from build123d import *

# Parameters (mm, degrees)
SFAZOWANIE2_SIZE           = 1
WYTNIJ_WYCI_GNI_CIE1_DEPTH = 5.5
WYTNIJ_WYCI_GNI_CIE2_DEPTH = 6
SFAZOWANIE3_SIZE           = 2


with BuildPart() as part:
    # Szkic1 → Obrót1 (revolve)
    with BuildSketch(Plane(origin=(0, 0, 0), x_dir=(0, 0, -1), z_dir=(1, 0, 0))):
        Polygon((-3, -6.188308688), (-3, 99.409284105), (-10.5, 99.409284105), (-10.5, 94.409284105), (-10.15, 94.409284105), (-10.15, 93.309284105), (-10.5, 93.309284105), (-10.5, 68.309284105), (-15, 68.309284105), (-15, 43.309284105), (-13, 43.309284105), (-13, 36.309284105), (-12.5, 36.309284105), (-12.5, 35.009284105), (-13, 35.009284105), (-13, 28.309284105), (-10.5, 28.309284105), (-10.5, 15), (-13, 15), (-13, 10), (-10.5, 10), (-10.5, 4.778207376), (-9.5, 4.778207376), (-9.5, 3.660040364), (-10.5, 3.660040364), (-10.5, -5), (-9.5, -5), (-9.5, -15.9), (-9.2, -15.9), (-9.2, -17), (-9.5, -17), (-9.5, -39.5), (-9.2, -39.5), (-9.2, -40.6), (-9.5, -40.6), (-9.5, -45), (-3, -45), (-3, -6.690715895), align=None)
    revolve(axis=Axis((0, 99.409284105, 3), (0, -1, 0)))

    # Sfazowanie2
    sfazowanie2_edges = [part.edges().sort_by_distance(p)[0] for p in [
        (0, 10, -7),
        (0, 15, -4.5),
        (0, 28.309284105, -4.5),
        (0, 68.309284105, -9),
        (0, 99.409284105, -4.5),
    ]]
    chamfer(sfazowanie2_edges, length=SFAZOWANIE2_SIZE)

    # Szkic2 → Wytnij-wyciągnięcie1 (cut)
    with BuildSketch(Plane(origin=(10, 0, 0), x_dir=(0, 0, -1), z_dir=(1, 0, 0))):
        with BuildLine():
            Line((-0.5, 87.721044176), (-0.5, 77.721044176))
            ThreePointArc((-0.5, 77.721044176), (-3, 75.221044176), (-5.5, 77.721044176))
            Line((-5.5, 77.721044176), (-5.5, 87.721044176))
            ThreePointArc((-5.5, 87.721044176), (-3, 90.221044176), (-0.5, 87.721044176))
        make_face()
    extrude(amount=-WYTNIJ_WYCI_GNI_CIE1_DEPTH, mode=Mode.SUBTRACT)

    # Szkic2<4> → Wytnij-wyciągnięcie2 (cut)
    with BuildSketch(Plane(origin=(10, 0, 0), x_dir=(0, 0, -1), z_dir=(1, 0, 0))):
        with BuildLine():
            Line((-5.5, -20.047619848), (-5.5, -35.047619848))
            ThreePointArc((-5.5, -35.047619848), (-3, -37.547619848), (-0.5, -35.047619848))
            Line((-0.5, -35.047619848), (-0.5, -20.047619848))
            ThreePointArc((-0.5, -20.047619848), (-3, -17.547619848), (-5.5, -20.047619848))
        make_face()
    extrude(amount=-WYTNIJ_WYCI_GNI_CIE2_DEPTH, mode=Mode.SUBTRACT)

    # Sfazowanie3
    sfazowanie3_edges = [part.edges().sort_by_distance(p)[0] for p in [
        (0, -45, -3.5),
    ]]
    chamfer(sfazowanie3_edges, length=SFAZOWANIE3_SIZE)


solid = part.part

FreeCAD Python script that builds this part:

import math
import FreeCAD as App
import Part
import Sketcher

V = App.Vector


def edges_at(feature, points):
    """Names of the edges that pass closest to the given points."""
    edges = feature.Shape.Edges
    near = lambda p: min(range(len(edges)), key=lambda i: edges[i].distToShape(Part.Vertex(*p))[0])
    return sorted({f"Edge{near(p) + 1}" for p in points})


def add_polygon(sketch, points):
    """Adds a closed chain of lines whose ends are joined by coincident constraints."""
    first, n = sketch.GeometryCount, len(points)
    for a, b in zip(points, points[1:] + points[:1]):
        sketch.addGeometry(Part.LineSegment(App.Vector(*a, 0), App.Vector(*b, 0)), False)
    for i in range(n):
        sketch.addConstraint(Sketcher.Constraint("Coincident", first + i, 2, first + (i + 1) % n, 1))

doc = App.newDocument("Part")
body = doc.addObject("PartDesign::Body", "Body")

sketch1 = body.newObject("Sketcher::SketchObject", "Sketch")
sketch1.AttachmentSupport = (doc.getObject("YZ_Plane"), [""])
sketch1.MapMode = "FlatFace"
add_polygon(sketch1, [(99.41, 3), (99.41, 10.5), (94.41, 10.5), (94.41, 10.15), (93.31, 10.15), (93.31, 10.5), (68.31, 10.5), (68.31, 15), (43.31, 15), (43.31, 13), (36.31, 13), (36.31, 12.5), (35.01, 12.5), (35.01, 13), (28.31, 13), (28.31, 10.5), (15, 10.5), (15, 13), (10, 13), (10, 10.5), (4.78, 10.5), (4.78, 9.5), (3.66, 9.5), (3.66, 10.5), (-5, 10.5), (-5, 9.5), (-15.9, 9.5), (-15.9, 9.2), (-17, 9.2), (-17, 9.5), (-39.5, 9.5), (-39.5, 9.2), (-40.6, 9.2), (-40.6, 9.5), (-45, 9.5), (-45, 3)])
sketch1.addGeometry(Part.LineSegment(V(99.41, 3, 0), V(-45, 3, 0)), True)
sketch1.addConstraint([
    Sketcher.Constraint("Vertical", 0),
    Sketcher.Constraint("Horizontal", 1),
    Sketcher.Constraint("Vertical", 2),
    Sketcher.Constraint("Horizontal", 3),
    Sketcher.Constraint("Vertical", 4),
    Sketcher.Constraint("Horizontal", 5),
    Sketcher.Constraint("Vertical", 6),
    Sketcher.Constraint("Horizontal", 7),
    Sketcher.Constraint("Vertical", 8),
    Sketcher.Constraint("Horizontal", 9),
    Sketcher.Constraint("Vertical", 10),
    Sketcher.Constraint("Horizontal", 11),
    Sketcher.Constraint("Vertical", 12),
    Sketcher.Constraint("Horizontal", 13),
    Sketcher.Constraint("Vertical", 14),
    Sketcher.Constraint("Horizontal", 15),
    Sketcher.Constraint("Vertical", 16),
    Sketcher.Constraint("Horizontal", 17),
    Sketcher.Constraint("Vertical", 18),
    Sketcher.Constraint("Horizontal", 19),
    Sketcher.Constraint("Vertical", 20),
    Sketcher.Constraint("Horizontal", 21),
    Sketcher.Constraint("Vertical", 22),
    Sketcher.Constraint("Horizontal", 23),
    Sketcher.Constraint("Vertical", 24),
    Sketcher.Constraint("Horizontal", 25),
    Sketcher.Constraint("Vertical", 26),
    Sketcher.Constraint("Horizontal", 27),
    Sketcher.Constraint("Vertical", 28),
    Sketcher.Constraint("Horizontal", 29),
    Sketcher.Constraint("Vertical", 30),
    Sketcher.Constraint("Horizontal", 31),
    Sketcher.Constraint("Vertical", 32),
    Sketcher.Constraint("Horizontal", 33),
    Sketcher.Constraint("Vertical", 34),
    Sketcher.Constraint("Horizontal", 35),
    Sketcher.Constraint("Horizontal", 36),
    Sketcher.Constraint("Coincident", 36, 1, 35, 2),
    Sketcher.Constraint("Horizontal", 1, 2, 4, 2),
    Sketcher.Constraint("Horizontal", 9, 2, 12, 2),
    Sketcher.Constraint("Horizontal", 5, 2, 14, 2),
    Sketcher.Constraint("Horizontal", 13, 2, 16, 2),
    Sketcher.Constraint("Horizontal", 15, 2, 18, 2),
    Sketcher.Constraint("Horizontal", 19, 2, 22, 2),
    Sketcher.Constraint("Horizontal", 21, 2, 24, 2),
    Sketcher.Constraint("Horizontal", 25, 2, 28, 2),
    Sketcher.Constraint("Horizontal", 27, 2, 30, 2),
    Sketcher.Constraint("Horizontal", 29, 2, 32, 2),
    Sketcher.Constraint("Vertical", 33, 2, 36, 2),
    Sketcher.Constraint("Equal", 5, 7),
    Sketcher.Constraint("Equal", 1, 17),
    Sketcher.Constraint("Equal", 3, 27),
    Sketcher.Constraint("Equal", 27, 31),
    Sketcher.Constraint("DistanceX", 1, 2, 1, 1, 5.0),
    Sketcher.Constraint("DistanceX", 5, 2, 5, 1, 25.0),
    Sketcher.Constraint("DistanceX", 9, 2, 9, 1, 7.0),
    Sketcher.Constraint("DistanceY", 8, 2, 8, 1, 2.0),
    Sketcher.Constraint("DistanceY", 20, 2, 20, 1, 1.0),
    Sketcher.Constraint("DistanceX", 3, 2, 3, 1, 1.1),
    Sketcher.Constraint("DistanceX", 11, 2, 11, 1, 1.3),
    Sketcher.Constraint("DistanceX", 13, 2, 13, 1, 6.7),
    Sketcher.Constraint("DistanceX", 25, 2, 25, 1, 10.9),
    Sketcher.Constraint("DistanceX", 29, 2, 29, 1, 22.5),
    Sketcher.Constraint("DistanceX", 33, 2, 33, 1, 4.4),
    Sketcher.Constraint("DistanceY", 0, 1, 0, 2, 7.5),
    Sketcher.Constraint("DistanceY", 6, 1, 6, 2, 4.5),
    Sketcher.Constraint("DistanceY", 10, 2, 10, 1, 0.5),
    Sketcher.Constraint("DistanceY", 26, 2, 26, 1, 0.3),
    Sketcher.Constraint("DistanceY", -1, 1, 6, 2, 15.0),
    Sketcher.Constraint("DistanceX", -1, 1, 15, 2, 15.0),
    Sketcher.Constraint("DistanceX", 23, 2, -1, 1, 5.0),
    Sketcher.Constraint("DistanceY", 2, 2, 2, 1, 0.35),
    Sketcher.Constraint("DistanceX", 23, 2, 23, 1, 8.66004),
    Sketcher.Constraint("DistanceX", 15, 2, 15, 1, 13.309284),
    Sketcher.Constraint("DistanceX", 19, 2, 19, 1, 5.221793),
])
revolution = body.newObject("PartDesign::Revolution", "Revolution")
revolution.Profile = sketch1
revolution.ReferenceAxis = (sketch1, ["Axis0"])
revolution.Angle = 360
doc.recompute()

chamfer = body.newObject("PartDesign::Chamfer", "Chamfer")
chamfer.Base = (revolution, edges_at(revolution, [
    (0, 10, -7),
    (0, 15, -4.5),
    (0, 28.309, -4.5),
    (0, 68.309, -9),
    (0, 99.409, -4.5),
]))
chamfer.Size = 1

sketch2 = body.newObject("Sketcher::SketchObject", "Sketch001")
sketch2.AttachmentSupport = (doc.getObject("YZ_Plane"), [""])
sketch2.MapMode = "FlatFace"
sketch2.AttachmentOffset = App.Placement(V(0, 0, 10), App.Rotation())
sketch2.addGeometry([
    Part.LineSegment(V(77.7, 0.5, 0), V(87.7, 0.5, 0)),
    Part.ArcOfCircle(Part.Circle(V(87.7, 3, 0), V(0, 0, 1), 2.5), math.radians(-90), math.radians(90)),
    Part.LineSegment(V(87.7, 5.5, 0), V(77.7, 5.5, 0)),
    Part.ArcOfCircle(Part.Circle(V(77.7, 3, 0), V(0, 0, 1), 2.5), math.radians(90), math.radians(270)),
], False)
sketch2.addConstraint([
    Sketcher.Constraint("Tangent", 0, 2, 1, 1),
    Sketcher.Constraint("Tangent", 1, 2, 2, 1),
    Sketcher.Constraint("Tangent", 2, 2, 3, 1),
    Sketcher.Constraint("Tangent", 3, 2, 0, 1),
    Sketcher.Constraint("Horizontal", 0),
    Sketcher.Constraint("Horizontal", 2),
    Sketcher.Constraint("Radius", 1, 2.5),
    Sketcher.Constraint("DistanceX", 0, 1, 0, 2, 10.0),
    Sketcher.Constraint("DistanceY", -1, 1, 1, 3, 3.0),
    Sketcher.Constraint("DistanceX", -1, 1, 1, 3, 87.721044),
])
pocket1 = body.newObject("PartDesign::Pocket", "Pocket")
pocket1.Profile = sketch2
pocket1.Length = 5.5

sketch3 = body.newObject("Sketcher::SketchObject", "Sketch002")
sketch3.AttachmentSupport = (doc.getObject("YZ_Plane"), [""])
sketch3.MapMode = "FlatFace"
sketch3.AttachmentOffset = App.Placement(V(0, 0, 10), App.Rotation())
sketch3.addGeometry([
    Part.LineSegment(V(-20, 5.5, 0), V(-35, 5.5, 0)),
    Part.ArcOfCircle(Part.Circle(V(-35, 3, 0), V(0, 0, 1), 2.5), math.radians(90), math.radians(270)),
    Part.LineSegment(V(-35, 0.5, 0), V(-20, 0.5, 0)),
    Part.ArcOfCircle(Part.Circle(V(-20, 3, 0), V(0, 0, 1), 2.5), math.radians(-90), math.radians(90)),
], False)
sketch3.addConstraint([
    Sketcher.Constraint("Tangent", 0, 2, 1, 1),
    Sketcher.Constraint("Tangent", 1, 2, 2, 1),
    Sketcher.Constraint("Tangent", 2, 2, 3, 1),
    Sketcher.Constraint("Tangent", 3, 2, 0, 1),
    Sketcher.Constraint("Horizontal", 0),
    Sketcher.Constraint("Horizontal", 2),
    Sketcher.Constraint("Radius", 1, 2.5),
    Sketcher.Constraint("DistanceX", 0, 2, 0, 1, 15.0),
    Sketcher.Constraint("DistanceY", -1, 1, 1, 3, 3.0),
    Sketcher.Constraint("DistanceX", 1, 3, -1, 1, 35.04762),
])
pocket2 = body.newObject("PartDesign::Pocket", "Pocket001")
pocket2.Profile = sketch3
pocket2.Length = 6
doc.recompute()

chamfer2 = body.newObject("PartDesign::Chamfer", "Chamfer001")
chamfer2.Base = (pocket2, edges_at(pocket2, [(0, -45, -3.5)]))
chamfer2.Size = 2

doc.recompute()
